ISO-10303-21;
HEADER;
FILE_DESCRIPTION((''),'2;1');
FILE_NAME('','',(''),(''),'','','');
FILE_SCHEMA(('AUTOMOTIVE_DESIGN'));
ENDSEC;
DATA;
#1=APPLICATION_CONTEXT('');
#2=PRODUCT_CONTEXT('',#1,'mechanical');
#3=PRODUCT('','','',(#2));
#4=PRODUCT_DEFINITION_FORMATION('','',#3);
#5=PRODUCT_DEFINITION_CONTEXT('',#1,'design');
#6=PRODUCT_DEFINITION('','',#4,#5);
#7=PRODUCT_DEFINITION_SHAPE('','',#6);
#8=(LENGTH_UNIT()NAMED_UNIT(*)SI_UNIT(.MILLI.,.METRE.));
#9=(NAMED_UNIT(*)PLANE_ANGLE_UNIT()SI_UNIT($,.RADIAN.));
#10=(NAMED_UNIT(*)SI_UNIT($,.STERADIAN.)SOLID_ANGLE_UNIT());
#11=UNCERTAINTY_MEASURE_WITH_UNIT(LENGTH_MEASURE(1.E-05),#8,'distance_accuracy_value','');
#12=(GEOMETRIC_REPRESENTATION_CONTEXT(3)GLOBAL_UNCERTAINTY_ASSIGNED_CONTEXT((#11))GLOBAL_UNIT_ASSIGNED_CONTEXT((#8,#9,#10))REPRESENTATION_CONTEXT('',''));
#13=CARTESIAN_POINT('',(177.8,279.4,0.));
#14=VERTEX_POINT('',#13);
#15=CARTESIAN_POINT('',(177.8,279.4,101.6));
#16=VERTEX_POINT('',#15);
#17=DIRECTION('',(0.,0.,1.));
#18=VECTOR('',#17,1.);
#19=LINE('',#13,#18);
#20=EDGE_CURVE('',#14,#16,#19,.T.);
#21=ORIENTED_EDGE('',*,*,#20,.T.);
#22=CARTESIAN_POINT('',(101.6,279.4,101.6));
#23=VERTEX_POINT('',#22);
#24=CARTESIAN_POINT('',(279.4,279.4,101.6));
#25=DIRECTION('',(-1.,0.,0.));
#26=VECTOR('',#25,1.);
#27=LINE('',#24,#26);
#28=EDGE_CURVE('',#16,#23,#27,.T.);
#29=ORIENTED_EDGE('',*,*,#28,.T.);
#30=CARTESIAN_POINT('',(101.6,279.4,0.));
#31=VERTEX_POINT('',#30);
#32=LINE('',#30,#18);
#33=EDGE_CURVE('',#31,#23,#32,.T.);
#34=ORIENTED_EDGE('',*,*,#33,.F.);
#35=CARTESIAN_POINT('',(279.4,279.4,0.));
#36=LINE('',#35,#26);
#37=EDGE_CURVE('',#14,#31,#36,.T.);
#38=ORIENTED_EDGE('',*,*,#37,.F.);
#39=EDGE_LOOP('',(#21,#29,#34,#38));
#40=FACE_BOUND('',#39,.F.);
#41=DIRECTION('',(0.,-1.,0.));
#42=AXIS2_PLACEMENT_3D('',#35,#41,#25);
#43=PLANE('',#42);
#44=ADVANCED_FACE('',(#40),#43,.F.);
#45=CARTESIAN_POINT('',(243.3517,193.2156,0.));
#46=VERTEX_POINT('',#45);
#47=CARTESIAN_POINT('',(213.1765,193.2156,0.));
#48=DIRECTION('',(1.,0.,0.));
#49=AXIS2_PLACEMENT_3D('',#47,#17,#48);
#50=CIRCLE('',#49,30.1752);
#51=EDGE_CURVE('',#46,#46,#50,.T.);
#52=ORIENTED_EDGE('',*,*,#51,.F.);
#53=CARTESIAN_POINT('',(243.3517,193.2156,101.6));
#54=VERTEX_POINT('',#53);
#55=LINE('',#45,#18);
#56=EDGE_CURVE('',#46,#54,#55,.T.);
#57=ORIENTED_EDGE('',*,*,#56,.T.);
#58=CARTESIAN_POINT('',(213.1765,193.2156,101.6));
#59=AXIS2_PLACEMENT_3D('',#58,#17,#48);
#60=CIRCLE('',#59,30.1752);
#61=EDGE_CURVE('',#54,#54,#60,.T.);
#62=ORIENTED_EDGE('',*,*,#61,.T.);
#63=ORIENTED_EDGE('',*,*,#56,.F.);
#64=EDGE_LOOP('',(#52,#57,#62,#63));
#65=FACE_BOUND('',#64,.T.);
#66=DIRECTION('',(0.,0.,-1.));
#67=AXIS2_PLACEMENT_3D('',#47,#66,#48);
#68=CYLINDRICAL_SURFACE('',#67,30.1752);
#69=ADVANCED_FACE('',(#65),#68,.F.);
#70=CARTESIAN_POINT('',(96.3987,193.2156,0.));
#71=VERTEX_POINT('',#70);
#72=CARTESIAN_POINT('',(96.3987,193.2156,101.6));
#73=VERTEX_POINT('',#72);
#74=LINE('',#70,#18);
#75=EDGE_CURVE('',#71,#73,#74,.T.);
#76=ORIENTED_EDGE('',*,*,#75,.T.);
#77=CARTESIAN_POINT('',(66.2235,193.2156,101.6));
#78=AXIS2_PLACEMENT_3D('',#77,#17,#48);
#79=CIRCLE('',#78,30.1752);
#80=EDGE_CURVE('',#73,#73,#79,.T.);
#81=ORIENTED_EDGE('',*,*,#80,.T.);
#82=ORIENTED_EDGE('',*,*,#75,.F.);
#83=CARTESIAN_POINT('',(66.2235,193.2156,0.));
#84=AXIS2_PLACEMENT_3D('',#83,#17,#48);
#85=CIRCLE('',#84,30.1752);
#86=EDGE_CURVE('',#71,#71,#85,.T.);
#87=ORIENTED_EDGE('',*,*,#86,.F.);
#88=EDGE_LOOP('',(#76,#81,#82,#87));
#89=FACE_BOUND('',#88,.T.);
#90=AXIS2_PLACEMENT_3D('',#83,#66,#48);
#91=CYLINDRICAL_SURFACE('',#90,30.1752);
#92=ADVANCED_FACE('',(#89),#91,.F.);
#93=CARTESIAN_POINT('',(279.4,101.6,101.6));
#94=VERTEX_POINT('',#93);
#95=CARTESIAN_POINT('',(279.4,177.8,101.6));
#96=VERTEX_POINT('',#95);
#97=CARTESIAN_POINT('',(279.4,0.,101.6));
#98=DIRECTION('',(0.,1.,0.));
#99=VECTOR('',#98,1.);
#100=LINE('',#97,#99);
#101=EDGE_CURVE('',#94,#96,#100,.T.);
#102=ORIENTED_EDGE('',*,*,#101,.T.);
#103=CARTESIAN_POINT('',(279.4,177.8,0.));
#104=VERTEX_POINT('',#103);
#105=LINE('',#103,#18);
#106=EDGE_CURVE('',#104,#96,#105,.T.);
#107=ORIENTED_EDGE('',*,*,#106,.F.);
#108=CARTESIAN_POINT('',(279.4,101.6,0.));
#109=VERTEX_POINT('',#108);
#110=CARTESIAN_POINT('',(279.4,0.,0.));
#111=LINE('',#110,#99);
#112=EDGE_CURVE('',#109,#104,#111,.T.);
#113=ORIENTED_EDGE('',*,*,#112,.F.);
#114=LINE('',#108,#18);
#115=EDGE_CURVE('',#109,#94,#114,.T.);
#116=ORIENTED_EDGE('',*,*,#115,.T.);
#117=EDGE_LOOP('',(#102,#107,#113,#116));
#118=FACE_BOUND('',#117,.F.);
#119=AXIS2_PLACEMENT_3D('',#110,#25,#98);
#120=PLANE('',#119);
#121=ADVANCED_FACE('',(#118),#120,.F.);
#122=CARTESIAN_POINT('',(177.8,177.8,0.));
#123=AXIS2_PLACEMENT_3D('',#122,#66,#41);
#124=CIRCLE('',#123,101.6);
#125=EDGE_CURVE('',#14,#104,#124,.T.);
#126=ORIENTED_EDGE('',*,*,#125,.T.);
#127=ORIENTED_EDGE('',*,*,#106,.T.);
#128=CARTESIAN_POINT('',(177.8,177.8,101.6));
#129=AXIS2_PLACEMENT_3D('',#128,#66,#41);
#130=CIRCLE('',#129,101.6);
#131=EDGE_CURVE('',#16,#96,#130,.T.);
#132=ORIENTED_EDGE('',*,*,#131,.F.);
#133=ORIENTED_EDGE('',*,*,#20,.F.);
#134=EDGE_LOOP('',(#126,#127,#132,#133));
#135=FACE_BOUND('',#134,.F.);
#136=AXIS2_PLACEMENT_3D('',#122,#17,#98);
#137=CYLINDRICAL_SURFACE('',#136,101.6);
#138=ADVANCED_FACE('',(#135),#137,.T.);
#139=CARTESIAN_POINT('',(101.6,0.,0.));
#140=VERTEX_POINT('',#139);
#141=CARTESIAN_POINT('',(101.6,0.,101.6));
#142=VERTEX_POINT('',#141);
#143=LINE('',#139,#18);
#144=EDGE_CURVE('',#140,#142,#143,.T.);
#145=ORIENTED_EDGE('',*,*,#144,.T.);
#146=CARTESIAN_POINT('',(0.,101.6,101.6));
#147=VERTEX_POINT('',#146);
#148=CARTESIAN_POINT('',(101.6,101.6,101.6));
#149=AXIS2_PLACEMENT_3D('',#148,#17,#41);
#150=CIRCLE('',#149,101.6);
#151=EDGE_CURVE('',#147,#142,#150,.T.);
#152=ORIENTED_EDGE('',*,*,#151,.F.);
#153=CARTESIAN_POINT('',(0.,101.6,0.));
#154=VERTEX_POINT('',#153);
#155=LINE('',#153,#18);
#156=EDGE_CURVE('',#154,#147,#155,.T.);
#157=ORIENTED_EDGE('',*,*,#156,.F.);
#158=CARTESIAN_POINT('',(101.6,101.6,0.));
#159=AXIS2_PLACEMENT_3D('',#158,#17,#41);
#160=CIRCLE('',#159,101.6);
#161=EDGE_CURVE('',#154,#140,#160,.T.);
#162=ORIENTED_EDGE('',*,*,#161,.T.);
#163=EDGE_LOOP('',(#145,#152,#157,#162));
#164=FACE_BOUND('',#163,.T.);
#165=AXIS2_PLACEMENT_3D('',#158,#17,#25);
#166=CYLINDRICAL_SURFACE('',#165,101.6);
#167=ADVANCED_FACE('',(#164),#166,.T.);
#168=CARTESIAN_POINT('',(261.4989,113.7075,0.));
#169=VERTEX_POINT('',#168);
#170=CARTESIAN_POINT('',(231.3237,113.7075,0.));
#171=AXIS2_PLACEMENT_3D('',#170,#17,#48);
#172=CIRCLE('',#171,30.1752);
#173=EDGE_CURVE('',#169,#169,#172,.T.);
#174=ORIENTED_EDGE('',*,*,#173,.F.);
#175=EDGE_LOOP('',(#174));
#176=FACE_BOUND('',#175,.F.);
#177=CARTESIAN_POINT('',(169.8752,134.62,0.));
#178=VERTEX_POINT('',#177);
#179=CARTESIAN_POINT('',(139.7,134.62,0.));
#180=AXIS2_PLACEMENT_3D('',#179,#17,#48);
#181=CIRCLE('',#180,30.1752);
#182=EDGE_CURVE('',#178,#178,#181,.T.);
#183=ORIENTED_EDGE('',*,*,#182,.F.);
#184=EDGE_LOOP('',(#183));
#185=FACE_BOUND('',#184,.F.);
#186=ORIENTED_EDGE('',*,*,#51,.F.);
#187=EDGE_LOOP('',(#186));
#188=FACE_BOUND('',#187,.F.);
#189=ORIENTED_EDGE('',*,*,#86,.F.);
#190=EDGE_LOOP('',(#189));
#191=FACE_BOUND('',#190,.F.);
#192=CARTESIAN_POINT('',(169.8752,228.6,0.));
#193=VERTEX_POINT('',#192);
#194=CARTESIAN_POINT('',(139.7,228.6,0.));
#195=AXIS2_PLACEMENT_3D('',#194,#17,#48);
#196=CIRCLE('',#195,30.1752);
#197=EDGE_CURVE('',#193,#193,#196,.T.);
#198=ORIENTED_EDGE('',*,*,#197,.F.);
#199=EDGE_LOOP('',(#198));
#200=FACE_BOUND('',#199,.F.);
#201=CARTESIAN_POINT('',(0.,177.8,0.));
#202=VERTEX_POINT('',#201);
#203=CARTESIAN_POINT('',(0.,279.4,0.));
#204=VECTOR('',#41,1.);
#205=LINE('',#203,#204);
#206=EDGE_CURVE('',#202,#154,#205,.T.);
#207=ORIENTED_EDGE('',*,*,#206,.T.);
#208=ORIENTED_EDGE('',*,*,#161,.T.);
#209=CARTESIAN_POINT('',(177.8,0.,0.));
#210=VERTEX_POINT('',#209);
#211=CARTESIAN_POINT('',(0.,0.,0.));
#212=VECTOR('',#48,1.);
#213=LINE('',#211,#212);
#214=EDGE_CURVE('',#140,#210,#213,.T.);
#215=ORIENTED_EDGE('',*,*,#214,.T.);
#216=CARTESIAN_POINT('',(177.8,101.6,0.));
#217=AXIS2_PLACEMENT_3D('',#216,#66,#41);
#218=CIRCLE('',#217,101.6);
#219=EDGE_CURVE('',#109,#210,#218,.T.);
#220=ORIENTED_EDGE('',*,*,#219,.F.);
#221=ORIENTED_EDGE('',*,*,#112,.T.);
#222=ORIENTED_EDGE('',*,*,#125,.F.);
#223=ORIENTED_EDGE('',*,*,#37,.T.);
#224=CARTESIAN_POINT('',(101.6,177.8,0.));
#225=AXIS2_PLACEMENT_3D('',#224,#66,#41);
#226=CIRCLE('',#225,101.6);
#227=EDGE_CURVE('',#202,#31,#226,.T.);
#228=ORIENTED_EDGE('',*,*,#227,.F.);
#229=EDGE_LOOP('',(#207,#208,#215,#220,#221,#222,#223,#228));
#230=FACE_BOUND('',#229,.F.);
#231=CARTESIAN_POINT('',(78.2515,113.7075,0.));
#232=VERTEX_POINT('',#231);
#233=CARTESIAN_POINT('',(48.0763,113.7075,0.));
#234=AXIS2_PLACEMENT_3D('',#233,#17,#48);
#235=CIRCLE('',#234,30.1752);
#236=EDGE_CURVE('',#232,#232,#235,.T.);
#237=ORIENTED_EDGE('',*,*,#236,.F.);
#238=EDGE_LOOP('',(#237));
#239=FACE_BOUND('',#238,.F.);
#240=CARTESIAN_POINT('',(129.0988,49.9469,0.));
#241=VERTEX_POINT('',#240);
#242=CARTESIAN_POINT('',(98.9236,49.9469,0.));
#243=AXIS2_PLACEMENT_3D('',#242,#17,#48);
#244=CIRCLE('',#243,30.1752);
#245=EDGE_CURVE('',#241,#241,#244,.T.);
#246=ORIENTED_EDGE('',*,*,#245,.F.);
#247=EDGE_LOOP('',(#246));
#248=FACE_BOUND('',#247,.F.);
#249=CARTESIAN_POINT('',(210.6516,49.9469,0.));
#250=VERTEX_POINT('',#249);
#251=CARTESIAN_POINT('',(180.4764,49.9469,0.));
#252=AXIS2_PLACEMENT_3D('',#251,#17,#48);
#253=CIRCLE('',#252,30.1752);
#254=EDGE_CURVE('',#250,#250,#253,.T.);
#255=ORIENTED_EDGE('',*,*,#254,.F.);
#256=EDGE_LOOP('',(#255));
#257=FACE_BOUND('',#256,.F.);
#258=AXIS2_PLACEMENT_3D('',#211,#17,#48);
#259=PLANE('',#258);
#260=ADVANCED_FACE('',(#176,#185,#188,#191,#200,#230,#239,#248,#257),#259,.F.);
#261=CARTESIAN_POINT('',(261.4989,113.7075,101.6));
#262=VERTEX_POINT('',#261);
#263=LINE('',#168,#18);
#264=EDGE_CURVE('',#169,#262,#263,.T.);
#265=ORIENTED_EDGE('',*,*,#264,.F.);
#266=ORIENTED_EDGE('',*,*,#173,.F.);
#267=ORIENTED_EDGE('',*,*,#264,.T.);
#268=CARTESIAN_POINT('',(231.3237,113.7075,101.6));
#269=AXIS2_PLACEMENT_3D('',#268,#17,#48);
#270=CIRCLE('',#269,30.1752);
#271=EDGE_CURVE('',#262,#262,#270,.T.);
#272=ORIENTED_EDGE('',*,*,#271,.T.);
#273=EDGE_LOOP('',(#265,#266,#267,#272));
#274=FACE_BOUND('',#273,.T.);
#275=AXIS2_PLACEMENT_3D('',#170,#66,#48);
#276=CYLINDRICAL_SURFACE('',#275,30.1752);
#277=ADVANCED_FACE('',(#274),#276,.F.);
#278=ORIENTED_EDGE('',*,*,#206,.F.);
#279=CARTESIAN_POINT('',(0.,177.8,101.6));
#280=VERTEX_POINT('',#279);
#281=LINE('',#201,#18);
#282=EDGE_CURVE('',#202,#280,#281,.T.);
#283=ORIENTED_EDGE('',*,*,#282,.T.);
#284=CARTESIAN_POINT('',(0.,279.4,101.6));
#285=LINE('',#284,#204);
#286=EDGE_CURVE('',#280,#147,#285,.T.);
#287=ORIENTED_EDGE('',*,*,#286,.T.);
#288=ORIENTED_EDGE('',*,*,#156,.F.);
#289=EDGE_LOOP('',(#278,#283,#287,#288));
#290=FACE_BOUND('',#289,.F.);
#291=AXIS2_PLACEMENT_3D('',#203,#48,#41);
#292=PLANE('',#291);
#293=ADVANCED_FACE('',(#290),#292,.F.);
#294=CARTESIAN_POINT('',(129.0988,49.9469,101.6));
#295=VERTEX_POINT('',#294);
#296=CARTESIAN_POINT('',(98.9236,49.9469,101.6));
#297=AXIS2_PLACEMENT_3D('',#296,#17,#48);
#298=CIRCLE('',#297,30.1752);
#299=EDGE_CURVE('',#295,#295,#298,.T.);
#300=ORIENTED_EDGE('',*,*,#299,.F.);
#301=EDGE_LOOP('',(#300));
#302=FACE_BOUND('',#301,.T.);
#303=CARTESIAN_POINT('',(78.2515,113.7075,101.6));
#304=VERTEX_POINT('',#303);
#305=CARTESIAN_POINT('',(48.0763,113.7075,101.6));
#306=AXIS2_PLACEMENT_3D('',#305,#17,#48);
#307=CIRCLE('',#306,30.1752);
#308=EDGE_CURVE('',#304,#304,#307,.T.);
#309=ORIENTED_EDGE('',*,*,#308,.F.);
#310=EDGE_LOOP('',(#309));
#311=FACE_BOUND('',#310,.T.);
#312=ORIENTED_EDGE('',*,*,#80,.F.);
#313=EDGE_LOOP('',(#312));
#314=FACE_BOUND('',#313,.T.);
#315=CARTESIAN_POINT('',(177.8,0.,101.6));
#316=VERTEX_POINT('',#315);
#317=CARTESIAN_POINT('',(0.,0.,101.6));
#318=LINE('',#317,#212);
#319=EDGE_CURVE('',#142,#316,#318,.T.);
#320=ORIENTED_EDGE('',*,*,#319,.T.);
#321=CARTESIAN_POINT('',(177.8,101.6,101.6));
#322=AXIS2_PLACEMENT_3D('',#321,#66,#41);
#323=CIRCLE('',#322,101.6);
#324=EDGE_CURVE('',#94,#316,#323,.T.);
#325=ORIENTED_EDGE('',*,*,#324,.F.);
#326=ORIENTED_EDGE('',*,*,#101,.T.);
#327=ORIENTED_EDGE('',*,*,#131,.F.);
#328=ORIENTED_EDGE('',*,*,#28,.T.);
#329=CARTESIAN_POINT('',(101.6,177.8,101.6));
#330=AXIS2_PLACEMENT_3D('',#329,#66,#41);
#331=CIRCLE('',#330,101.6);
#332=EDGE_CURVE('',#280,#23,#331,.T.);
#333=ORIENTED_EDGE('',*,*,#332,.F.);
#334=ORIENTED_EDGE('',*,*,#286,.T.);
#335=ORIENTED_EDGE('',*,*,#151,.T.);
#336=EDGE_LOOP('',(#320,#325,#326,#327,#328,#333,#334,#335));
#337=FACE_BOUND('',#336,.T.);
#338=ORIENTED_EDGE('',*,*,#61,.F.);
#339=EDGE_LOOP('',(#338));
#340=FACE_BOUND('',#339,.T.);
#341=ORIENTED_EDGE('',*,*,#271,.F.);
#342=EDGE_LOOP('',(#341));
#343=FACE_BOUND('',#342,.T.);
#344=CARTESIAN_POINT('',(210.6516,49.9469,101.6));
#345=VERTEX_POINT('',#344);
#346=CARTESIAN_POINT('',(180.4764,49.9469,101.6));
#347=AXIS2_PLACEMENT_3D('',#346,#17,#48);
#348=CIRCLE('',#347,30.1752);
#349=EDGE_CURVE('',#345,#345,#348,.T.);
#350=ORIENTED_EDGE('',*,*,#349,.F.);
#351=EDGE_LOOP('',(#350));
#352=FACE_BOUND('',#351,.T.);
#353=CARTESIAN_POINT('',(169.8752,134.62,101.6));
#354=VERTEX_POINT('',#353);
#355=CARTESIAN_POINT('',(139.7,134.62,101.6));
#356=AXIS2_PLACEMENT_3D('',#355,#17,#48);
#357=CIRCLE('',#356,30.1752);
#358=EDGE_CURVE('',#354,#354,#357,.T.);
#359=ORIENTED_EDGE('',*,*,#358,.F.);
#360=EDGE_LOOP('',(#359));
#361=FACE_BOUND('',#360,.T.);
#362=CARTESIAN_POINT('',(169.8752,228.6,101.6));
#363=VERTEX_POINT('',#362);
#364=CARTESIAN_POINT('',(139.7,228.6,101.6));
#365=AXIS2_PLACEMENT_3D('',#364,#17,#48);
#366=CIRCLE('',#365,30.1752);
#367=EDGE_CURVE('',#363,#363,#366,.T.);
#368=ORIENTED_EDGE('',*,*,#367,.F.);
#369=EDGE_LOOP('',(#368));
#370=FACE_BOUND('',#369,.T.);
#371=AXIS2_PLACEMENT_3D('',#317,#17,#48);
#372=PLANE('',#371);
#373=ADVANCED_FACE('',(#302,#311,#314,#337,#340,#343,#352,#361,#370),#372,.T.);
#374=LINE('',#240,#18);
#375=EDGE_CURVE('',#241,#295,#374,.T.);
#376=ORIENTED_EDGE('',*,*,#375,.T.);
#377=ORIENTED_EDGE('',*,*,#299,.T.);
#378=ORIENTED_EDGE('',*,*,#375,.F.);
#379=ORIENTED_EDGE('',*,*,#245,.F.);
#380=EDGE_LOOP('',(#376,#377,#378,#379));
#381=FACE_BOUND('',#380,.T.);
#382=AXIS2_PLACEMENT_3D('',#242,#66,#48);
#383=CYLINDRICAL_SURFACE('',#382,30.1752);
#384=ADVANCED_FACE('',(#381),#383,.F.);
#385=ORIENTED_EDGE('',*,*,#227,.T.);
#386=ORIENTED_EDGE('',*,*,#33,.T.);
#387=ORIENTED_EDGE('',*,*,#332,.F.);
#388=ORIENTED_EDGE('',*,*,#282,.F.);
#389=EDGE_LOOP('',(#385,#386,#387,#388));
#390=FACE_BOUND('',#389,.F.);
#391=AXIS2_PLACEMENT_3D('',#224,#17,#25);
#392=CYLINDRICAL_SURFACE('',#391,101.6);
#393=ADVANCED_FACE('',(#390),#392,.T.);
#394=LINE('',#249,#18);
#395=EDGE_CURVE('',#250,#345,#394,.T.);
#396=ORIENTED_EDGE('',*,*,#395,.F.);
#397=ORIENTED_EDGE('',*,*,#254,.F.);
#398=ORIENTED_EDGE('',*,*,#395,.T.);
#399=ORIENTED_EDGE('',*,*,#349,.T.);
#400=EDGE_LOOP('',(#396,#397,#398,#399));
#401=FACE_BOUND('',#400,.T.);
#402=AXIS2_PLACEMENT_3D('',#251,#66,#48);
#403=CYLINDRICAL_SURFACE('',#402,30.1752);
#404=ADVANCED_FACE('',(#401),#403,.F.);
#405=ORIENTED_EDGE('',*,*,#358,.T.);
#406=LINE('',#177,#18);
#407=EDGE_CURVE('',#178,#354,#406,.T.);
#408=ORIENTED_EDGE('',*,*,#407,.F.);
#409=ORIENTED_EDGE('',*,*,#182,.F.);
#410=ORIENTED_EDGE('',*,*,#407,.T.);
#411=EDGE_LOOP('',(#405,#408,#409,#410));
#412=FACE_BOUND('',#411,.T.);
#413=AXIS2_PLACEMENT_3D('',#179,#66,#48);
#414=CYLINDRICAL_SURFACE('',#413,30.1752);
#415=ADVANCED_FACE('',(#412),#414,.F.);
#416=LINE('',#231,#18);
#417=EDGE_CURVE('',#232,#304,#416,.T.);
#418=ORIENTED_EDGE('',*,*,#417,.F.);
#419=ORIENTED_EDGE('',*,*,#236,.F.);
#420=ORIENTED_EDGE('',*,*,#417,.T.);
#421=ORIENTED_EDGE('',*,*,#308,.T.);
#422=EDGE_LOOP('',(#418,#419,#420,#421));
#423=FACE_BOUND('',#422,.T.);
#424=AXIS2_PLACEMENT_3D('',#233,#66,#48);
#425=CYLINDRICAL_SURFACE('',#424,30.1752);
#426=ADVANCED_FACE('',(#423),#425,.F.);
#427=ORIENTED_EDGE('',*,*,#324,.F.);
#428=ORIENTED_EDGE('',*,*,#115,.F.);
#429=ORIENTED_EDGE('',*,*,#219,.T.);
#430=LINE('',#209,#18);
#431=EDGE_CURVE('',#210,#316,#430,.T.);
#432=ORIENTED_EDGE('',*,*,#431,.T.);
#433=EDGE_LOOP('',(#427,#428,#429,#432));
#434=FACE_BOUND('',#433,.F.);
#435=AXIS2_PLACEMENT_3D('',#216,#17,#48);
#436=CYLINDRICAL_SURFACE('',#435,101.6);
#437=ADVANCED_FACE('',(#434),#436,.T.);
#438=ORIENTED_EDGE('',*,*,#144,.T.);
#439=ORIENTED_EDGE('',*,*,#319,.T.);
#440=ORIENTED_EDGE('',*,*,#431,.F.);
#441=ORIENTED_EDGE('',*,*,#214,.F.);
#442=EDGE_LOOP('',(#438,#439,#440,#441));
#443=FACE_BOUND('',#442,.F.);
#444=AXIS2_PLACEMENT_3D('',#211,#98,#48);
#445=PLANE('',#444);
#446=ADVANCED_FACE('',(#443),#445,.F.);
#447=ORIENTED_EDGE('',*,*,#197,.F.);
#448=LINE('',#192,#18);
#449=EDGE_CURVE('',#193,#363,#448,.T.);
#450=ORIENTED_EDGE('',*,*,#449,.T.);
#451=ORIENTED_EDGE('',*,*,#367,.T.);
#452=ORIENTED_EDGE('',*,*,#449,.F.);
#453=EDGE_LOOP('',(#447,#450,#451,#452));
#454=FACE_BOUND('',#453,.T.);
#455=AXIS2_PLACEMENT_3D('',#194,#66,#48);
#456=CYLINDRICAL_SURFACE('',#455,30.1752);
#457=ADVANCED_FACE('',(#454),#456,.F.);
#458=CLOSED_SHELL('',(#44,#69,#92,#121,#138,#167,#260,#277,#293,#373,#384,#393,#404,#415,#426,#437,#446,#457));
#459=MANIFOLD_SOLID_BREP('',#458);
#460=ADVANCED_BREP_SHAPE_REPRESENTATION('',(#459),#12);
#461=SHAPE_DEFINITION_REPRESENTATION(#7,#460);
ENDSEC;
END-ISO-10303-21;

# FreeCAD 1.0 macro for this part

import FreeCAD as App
import Part
import Sketcher
from FreeCAD import Vector
Q = App.Units.Quantity


def edges_at(feature, points):
    """Names of the edges that pass closest to the given points."""
    edges = feature.Shape.Edges
    near = lambda p: min(range(len(edges)), key=lambda i: edges[i].distToShape(Part.Vertex(*p))[0])
    return sorted({f"Edge{near(p) + 1}" for p in points})


def add_polygon(sketch, points):
    """Adds a closed chain of lines whose ends are joined by coincident constraints."""
    first, n = sketch.GeometryCount, len(points)
    for a, b in zip(points, points[1:] + points[:1]):
        sketch.addGeometry(Part.LineSegment(App.Vector(*a, 0), App.Vector(*b, 0)), False)
    for i in range(n):
        sketch.addConstraint(Sketcher.Constraint("Coincident", first + i, 2, first + (i + 1) % n, 1))

doc = App.newDocument("Part")
params = doc.addObject("Spreadsheet::Sheet", "Params")
for row, (alias, value) in enumerate([
    ("sketch1_width", "11 in"),
    ("sketch1_diameter", "2.376 in"),
    ("pad1_length", "4 in"),
    ("fillet_radius", "4 in"),
], start=1):
    params.set(f"A{row}", alias)
    params.set(f"B{row}", "=" + value)
    params.setAlias(f"B{row}", alias)

body = doc.addObject("PartDesign::Body", "Body")

# Sketch on XY plane
sketch1 = body.newObject("Sketcher::SketchObject", "Sketch")
sketch1.AttachmentSupport = (doc.getObject("XY_Plane"), [""])
sketch1.MapMode = "FlatFace"
add_polygon(sketch1, [(0, 279.4), (0, 0), (279.4, 0), (279.4, 279.4)])  # lines 0-3
sketch1.addGeometry(Part.Circle(Vector(98.9236, 49.9469, 0), Vector(0, 0, 1), 30.1752), False)  # 4
sketch1.addGeometry(Part.Circle(Vector(48.0763, 113.7075, 0), Vector(0, 0, 1), 30.1752), False)  # 5
sketch1.addGeometry(Part.Circle(Vector(180.4764, 49.9469, 0), Vector(0, 0, 1), 30.1752), False)  # 6
sketch1.addGeometry(Part.Circle(Vector(139.7, 134.62, 0), Vector(0, 0, 1), 30.1752), False)  # 7
sketch1.addGeometry(Part.Circle(Vector(231.3237, 113.7075, 0), Vector(0, 0, 1), 30.1752), False)  # 8
sketch1.addGeometry(Part.Circle(Vector(66.2235, 193.2156, 0), Vector(0, 0, 1), 30.1752), False)  # 9
sketch1.addGeometry(Part.Circle(Vector(213.1765, 193.2156, 0), Vector(0, 0, 1), 30.1752), False)  # 10
sketch1.addGeometry(Part.Circle(Vector(139.7, 228.6, 0), Vector(0, 0, 1), 30.1752), False)  # 11
sketch1.addConstraint([
    Sketcher.Constraint("Vertical", 0),
    Sketcher.Constraint("Horizontal", 1),
    Sketcher.Constraint("Vertical", 2),
    Sketcher.Constraint("Horizontal", 3),
    Sketcher.Constraint("Coincident", 0, 2, -1, 1),
    Sketcher.Constraint("Equal", 4, 5),
    Sketcher.Constraint("Equal", 5, 6),
    Sketcher.Constraint("Equal", 6, 7),
    Sketcher.Constraint("Equal", 7, 8),
    Sketcher.Constraint("Equal", 8, 9),
    Sketcher.Constraint("Equal", 9, 10),
    Sketcher.Constraint("Equal", 10, 11),
    Sketcher.Constraint("Horizontal", 4, 3, 6, 3),
    Sketcher.Constraint("Horizontal", 5, 3, 8, 3),
    Sketcher.Constraint("Horizontal", 9, 3, 10, 3),
    Sketcher.Constraint("Vertical", 7, 3, 11, 3),
    Sketcher.Constraint("Equal", 3, 0),
    Sketcher.Constraint("DistanceX", 1, 1, 1, 2, Q("11 in")),
    Sketcher.Constraint("Diameter", 4, Q("2.376 in")),
    Sketcher.Constraint("DistanceY", -1, 1, 11, 3, Q("9 in")),
    Sketcher.Constraint("DistanceX", -1, 1, 7, 3, Q("5.5 in")),
    Sketcher.Constraint("DistanceY", -1, 1, 7, 3, Q("5.3 in")),
    Sketcher.Constraint("DistanceX", 9, 3, 8, 3, Q("6.5 in")),
    Sketcher.Constraint("DistanceX", 5, 3, 10, 3, Q("6.5 in")),
    Sketcher.Constraint("DistanceX", 5, 3, 6, 3, Q("5.2126 in")),
    Sketcher.Constraint("DistanceX", 4, 3, 8, 3, Q("5.2126 in")),
    Sketcher.Constraint("DistanceY", 4, 3, 9, 3, Q("5.6405 in")),
    Sketcher.Constraint("DistanceX", -1, 1, 4, 3, 98.9236),
    Sketcher.Constraint("DistanceY", -1, 1, 4, 3, 49.947),
    Sketcher.Constraint("DistanceX", -1, 1, 5, 3, 48.0763),
    Sketcher.Constraint("DistanceY", -1, 1, 5, 3, 113.7075),
])
sketch1.setExpression("Constraints[21]", "Params.sketch1_width")
sketch1.setExpression("Constraints[22]", "Params.sketch1_diameter")
pad1 = body.newObject("PartDesign::Pad", "Pad")
pad1.Profile = sketch1
pad1.setExpression("Length", "Params.pad1_length")
doc.recompute()

fillet = body.newObject("PartDesign::Fillet", "Fillet")
fillet.Base = (pad1, edges_at(pad1, [
    (279.4, 279.4, 50.8),
    (0, 279.4, 50.8),
    (279.4, 0, 50.8),
    (0, 0, 50.8),
]))
fillet.setExpression("Radius", "Params.fillet_radius")

doc.recompute()
